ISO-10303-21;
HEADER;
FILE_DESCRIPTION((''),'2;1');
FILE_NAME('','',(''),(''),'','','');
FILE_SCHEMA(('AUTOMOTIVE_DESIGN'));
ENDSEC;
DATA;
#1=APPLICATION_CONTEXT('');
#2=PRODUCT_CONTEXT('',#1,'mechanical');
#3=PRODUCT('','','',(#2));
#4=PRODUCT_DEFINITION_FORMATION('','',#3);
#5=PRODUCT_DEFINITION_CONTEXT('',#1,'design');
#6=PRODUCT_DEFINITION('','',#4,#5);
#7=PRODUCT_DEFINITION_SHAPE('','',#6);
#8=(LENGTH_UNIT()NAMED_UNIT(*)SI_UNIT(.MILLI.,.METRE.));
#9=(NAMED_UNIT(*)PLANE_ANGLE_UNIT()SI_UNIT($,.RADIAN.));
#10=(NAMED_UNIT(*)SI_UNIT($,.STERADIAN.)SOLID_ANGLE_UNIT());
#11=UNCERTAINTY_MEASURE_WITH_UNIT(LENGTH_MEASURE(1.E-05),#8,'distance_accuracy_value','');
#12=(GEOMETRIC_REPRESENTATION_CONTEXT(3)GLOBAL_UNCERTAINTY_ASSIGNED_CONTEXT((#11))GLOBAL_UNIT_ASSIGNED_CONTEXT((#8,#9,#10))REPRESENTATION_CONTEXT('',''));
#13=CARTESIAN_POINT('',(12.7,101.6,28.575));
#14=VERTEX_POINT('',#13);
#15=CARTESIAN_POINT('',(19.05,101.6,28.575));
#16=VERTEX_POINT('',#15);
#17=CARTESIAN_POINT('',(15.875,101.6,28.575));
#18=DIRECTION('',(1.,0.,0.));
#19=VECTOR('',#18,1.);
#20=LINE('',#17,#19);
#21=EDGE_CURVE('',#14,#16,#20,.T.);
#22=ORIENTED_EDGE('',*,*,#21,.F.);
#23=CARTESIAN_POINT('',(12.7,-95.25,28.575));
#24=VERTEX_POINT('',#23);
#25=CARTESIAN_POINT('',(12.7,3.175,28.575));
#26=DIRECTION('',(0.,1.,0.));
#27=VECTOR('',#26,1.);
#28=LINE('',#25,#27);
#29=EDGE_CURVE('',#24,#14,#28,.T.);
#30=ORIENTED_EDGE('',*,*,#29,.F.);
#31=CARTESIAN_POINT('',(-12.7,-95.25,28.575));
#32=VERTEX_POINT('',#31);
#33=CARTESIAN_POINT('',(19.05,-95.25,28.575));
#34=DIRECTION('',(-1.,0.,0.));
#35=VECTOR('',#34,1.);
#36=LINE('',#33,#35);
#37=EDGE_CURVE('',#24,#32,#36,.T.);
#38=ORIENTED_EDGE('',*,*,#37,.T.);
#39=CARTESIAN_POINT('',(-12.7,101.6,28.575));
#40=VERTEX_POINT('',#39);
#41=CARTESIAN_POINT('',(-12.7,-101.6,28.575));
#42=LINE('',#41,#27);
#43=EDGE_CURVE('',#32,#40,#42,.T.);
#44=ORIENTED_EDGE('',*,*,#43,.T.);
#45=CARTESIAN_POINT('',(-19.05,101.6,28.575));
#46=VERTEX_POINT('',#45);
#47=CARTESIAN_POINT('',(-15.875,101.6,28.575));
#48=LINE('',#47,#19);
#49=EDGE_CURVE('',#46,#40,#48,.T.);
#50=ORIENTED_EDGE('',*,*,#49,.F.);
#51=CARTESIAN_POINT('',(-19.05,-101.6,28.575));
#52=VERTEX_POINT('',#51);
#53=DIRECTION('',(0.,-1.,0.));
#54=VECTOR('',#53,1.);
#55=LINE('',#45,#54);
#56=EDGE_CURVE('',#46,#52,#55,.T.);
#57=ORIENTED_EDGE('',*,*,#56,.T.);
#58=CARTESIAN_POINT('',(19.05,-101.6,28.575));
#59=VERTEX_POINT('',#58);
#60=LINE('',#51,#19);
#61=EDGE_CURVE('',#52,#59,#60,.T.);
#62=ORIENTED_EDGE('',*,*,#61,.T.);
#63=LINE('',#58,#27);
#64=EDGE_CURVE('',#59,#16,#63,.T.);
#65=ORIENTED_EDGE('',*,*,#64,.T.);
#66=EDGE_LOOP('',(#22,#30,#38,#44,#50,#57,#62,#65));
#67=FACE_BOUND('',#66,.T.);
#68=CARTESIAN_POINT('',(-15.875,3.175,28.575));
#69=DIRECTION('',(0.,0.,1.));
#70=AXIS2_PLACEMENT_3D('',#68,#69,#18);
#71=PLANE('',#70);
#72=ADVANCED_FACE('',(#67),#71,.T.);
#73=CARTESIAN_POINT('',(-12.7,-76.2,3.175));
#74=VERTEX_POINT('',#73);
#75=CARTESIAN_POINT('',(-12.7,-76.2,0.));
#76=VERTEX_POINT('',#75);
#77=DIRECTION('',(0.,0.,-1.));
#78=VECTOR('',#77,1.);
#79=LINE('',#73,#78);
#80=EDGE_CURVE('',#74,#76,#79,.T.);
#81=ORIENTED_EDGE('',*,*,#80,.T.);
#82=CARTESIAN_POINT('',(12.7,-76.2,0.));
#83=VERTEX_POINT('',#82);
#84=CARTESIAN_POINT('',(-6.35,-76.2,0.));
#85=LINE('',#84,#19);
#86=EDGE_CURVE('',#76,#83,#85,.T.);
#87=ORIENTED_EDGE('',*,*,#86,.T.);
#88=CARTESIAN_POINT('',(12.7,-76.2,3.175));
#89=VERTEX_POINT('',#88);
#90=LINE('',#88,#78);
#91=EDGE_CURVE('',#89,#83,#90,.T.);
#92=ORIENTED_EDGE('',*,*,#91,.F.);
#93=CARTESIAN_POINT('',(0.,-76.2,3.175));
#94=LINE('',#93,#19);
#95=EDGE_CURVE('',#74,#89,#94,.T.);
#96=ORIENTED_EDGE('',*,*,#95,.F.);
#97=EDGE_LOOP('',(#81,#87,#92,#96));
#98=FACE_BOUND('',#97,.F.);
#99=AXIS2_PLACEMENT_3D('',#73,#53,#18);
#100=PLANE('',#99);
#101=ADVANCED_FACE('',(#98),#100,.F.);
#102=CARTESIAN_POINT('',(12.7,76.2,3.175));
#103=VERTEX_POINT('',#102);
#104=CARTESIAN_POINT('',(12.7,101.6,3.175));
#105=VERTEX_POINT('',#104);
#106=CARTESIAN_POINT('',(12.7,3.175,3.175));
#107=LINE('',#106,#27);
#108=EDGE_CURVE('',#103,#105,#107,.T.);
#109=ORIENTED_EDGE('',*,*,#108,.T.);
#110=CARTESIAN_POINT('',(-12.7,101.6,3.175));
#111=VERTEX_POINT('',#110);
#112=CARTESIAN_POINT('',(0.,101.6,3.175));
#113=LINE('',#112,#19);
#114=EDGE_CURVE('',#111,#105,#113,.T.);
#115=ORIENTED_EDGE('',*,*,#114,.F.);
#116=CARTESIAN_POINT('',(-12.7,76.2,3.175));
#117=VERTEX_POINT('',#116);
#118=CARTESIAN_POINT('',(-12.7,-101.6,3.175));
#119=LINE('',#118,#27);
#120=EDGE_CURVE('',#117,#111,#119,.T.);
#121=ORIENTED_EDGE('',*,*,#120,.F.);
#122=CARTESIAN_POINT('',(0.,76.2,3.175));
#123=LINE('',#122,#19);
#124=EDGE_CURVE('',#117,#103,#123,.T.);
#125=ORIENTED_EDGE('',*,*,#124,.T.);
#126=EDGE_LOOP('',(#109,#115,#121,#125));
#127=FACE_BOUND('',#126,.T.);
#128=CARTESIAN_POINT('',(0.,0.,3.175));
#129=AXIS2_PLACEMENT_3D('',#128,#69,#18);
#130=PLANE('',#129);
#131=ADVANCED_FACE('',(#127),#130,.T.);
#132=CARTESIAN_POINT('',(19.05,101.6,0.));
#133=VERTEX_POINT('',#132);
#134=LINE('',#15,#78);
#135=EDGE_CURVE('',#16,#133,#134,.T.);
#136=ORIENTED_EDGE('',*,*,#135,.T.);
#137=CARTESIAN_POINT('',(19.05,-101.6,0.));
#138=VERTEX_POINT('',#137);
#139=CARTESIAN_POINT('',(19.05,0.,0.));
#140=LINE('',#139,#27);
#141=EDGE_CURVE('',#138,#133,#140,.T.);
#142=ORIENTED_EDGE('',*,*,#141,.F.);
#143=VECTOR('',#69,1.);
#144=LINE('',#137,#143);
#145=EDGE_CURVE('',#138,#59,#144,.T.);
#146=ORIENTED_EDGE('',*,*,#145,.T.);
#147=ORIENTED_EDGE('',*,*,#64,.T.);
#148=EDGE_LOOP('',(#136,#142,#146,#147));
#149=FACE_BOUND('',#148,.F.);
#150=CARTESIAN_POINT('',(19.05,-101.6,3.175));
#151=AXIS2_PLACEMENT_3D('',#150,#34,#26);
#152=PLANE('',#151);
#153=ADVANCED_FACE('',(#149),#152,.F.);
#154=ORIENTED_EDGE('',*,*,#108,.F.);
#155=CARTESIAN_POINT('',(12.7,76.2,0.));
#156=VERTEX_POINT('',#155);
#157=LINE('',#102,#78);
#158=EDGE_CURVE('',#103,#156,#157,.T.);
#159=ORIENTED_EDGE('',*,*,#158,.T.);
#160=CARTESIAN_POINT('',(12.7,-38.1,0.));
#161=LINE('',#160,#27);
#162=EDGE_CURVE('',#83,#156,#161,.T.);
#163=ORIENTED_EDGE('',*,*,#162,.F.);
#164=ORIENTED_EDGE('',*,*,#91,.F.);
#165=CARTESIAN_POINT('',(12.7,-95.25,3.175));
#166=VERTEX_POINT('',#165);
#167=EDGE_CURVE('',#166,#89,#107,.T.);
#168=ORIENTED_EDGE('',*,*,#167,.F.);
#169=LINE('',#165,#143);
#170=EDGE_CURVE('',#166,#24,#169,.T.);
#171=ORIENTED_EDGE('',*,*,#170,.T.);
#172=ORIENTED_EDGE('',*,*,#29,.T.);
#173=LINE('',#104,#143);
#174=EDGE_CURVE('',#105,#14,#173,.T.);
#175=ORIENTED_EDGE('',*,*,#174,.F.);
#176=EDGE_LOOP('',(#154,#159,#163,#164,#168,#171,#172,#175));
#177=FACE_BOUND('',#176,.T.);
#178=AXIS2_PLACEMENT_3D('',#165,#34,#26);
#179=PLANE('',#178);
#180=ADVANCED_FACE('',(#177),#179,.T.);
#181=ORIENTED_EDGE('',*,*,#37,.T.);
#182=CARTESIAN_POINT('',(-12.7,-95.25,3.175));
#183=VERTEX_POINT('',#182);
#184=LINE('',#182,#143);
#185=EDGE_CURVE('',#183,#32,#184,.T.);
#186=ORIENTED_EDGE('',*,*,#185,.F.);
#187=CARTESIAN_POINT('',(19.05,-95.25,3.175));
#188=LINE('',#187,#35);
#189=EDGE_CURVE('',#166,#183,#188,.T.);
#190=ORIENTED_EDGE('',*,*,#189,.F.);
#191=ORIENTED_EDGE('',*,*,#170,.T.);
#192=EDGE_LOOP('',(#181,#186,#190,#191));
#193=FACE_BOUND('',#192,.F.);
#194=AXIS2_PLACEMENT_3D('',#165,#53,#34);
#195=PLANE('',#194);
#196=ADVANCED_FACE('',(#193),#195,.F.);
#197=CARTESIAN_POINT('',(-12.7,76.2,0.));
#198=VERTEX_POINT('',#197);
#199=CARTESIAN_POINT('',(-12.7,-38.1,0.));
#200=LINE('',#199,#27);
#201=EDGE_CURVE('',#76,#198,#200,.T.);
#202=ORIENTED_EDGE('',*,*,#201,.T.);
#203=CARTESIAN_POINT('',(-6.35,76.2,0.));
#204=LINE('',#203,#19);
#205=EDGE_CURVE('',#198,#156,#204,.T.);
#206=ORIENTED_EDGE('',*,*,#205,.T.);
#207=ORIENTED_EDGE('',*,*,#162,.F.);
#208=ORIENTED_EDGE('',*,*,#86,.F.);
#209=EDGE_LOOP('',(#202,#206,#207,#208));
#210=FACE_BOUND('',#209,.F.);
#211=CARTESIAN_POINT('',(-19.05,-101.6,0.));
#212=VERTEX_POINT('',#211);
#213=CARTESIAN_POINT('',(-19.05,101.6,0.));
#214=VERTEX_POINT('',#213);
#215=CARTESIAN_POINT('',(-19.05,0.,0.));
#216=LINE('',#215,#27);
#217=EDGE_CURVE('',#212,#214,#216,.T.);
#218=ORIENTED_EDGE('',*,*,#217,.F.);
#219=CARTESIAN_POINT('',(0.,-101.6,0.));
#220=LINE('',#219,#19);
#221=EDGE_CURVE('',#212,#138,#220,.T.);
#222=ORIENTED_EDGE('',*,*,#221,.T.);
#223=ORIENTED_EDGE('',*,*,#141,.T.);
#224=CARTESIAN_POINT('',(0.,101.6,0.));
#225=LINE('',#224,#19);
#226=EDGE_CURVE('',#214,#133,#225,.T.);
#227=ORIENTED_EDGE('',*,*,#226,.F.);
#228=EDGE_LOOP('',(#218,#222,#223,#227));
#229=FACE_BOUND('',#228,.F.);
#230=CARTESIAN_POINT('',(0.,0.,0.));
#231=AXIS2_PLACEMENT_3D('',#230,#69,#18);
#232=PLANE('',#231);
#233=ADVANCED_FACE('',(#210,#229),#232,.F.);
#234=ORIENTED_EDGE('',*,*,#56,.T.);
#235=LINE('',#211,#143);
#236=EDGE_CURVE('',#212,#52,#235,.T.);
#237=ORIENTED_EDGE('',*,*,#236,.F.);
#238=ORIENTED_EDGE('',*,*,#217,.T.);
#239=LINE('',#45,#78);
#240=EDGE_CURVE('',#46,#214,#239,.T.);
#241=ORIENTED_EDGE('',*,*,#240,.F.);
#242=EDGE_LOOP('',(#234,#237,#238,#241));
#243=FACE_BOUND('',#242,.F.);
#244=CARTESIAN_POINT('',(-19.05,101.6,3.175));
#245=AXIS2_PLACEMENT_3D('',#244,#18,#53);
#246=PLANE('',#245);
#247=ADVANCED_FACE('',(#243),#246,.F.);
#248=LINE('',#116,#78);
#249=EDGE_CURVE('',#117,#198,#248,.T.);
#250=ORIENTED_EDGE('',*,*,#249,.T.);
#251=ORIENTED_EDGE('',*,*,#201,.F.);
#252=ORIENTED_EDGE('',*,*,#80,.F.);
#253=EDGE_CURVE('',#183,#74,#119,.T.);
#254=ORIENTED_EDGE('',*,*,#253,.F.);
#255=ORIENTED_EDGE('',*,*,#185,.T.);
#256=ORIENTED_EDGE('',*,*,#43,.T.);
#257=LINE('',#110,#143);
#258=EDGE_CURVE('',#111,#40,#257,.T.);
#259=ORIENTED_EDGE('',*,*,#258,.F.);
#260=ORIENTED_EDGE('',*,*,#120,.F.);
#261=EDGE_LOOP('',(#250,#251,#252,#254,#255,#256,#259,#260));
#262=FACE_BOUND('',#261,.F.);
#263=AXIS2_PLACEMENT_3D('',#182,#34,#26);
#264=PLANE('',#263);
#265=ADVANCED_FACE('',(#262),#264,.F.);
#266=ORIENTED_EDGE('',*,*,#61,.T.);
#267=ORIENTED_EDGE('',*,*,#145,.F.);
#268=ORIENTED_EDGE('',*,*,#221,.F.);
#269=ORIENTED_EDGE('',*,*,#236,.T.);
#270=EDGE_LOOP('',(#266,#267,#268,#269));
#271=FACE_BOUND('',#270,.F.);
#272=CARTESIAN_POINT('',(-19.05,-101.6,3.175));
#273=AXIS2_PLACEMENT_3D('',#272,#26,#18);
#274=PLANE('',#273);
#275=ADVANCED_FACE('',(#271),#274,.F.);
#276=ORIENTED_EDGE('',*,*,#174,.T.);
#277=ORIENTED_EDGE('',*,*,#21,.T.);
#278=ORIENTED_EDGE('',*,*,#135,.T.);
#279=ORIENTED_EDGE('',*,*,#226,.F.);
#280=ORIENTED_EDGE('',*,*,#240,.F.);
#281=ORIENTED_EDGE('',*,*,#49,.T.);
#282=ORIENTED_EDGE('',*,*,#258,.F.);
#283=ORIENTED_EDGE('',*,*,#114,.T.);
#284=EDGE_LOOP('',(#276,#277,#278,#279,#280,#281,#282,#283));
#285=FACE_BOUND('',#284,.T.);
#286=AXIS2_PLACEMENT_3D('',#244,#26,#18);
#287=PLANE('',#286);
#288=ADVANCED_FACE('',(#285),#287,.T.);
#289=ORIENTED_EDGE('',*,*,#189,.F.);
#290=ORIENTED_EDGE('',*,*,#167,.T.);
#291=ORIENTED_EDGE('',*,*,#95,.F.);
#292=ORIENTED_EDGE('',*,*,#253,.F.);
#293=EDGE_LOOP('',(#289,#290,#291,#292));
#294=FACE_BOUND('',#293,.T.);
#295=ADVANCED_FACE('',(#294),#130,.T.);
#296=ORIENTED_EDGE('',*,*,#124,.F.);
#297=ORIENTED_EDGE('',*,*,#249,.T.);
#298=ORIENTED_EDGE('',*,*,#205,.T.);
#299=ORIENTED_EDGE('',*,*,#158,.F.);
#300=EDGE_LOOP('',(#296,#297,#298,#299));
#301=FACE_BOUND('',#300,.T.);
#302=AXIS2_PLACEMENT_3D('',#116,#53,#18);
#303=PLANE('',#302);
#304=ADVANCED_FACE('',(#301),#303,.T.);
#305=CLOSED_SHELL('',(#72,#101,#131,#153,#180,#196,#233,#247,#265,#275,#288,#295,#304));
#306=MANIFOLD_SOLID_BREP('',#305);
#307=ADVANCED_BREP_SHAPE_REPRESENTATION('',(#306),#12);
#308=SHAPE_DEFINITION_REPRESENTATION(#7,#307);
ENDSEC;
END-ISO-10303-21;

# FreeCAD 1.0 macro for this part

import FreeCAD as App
import Part
import Sketcher
Q = App.Units.Quantity


def add_polygon(sketch, points):
    """Adds a closed chain of lines whose ends are joined by coincident constraints."""
    first, n = sketch.GeometryCount, len(points)
    for a, b in zip(points, points[1:] + points[:1]):
        sketch.addGeometry(Part.LineSegment(App.Vector(*a, 0), App.Vector(*b, 0)), False)
    for i in range(n):
        sketch.addConstraint(Sketcher.Constraint("Coincident", first + i, 2, first + (i + 1) % n, 1))

doc = App.newDocument("Part")
params = doc.addObject("Spreadsheet::Sheet", "Params")
for row, (alias, value) in enumerate([
    ("sketch1_height", "8 in"),
    ("sketch1_width", "1.5 in"),
    ("pad1_length", "0.125 in"),
    ("sketch2_width", "1 in"),
    ("sketch2_height", "8 in"),
    ("sketch2_width2", "1.5 in"),
    ("sketch2_height2", "7.75 in"),
    ("pad2_length", "1 in"),
    ("sketch3_width", "1 in"),
    ("sketch3_height", "6 in"),
], start=1):
    params.set(f"A{row}", alias)
    params.set(f"B{row}", "=" + value)
    params.setAlias(f"B{row}", alias)

body = doc.addObject("PartDesign::Body", "Body")

# Sketch on XY plane
sketch1 = doc.addObject("Sketcher::SketchObject", "Sketch")
body.addObject(sketch1)
sketch1.AttachmentSupport = (doc.XY_Plane, [""])
sketch1.MapMode = "FlatFace"
add_polygon(sketch1, [(-19.05, 101.6), (-19.05, -101.6), (19.05, -101.6), (19.05, 101.6)])  # lines 0-3
sketch1.addConstraint(Sketcher.Constraint("Vertical", 0))
sketch1.addConstraint(Sketcher.Constraint("Horizontal", 1))
sketch1.addConstraint(Sketcher.Constraint("Vertical", 2))
sketch1.addConstraint(Sketcher.Constraint("Horizontal", 3))
sketch1.addConstraint(Sketcher.Constraint("Symmetric", 0, 2, 2, 2, -1, 1))
sketch1.addConstraint(Sketcher.Constraint("DistanceY", 0, 2, 0, 1, Q("8 in")))
sketch1.addConstraint(Sketcher.Constraint("DistanceX", 1, 1, 1, 2, Q("1.5 in")))
sketch1.setExpression("Constraints[9]", "Params.sketch1_height")
sketch1.setExpression("Constraints[10]", "Params.sketch1_width")
pad1 = doc.addObject("PartDesign::Pad", "Pad")
body.addObject(pad1)
pad1.Profile = sketch1
pad1.setExpression("Length", "Params.pad1_length")

# Sketch on XY plane
sketch2 = doc.addObject("Sketcher::SketchObject", "Sketch001")
body.addObject(sketch2)
sketch2.AttachmentSupport = (doc.XY_Plane, [""])
sketch2.MapMode = "FlatFace"
sketch2.AttachmentOffset = App.Placement(App.Vector(0, 0, 0.125 * 25.4), App.Rotation())
add_polygon(sketch2, [(-19.05, 101.6), (-19.05, -101.6), (19.05, -101.6), (19.05, 101.6), (12.7, 101.6), (12.7, -95.25), (-12.7, -95.25), (-12.7, 101.6)])  # lines 0-7
sketch2.addConstraint(Sketcher.Constraint("Vertical", 0))
sketch2.addConstraint(Sketcher.Constraint("Horizontal", 1))
sketch2.addConstraint(Sketcher.Constraint("Vertical", 2))
sketch2.addConstraint(Sketcher.Constraint("Horizontal", 3))
sketch2.addConstraint(Sketcher.Constraint("Vertical", 4))
sketch2.addConstraint(Sketcher.Constraint("Horizontal", 5))
sketch2.addConstraint(Sketcher.Constraint("Vertical", 6))
sketch2.addConstraint(Sketcher.Constraint("Horizontal", 7))
sketch2.addConstraint(Sketcher.Constraint("Symmetric", 0, 2, 2, 2, -1, 1))
sketch2.addConstraint(Sketcher.Constraint("Symmetric", 3, 2, 6, 2, -2))
sketch2.addConstraint(Sketcher.Constraint("DistanceX", 5, 2, 5, 1, Q("1 in")))
sketch2.addConstraint(Sketcher.Constraint("DistanceY", 0, 2, 0, 1, Q("8 in")))
sketch2.addConstraint(Sketcher.Constraint("DistanceX", 1, 1, 1, 2, Q("1.5 in")))
sketch2.addConstraint(Sketcher.Constraint("DistanceY", 4, 2, 4, 1, Q("7.75 in")))
sketch2.setExpression("Constraints[18]", "Params.sketch2_width")
sketch2.setExpression("Constraints[19]", "Params.sketch2_height")
sketch2.setExpression("Constraints[20]", "Params.sketch2_width2")
sketch2.setExpression("Constraints[21]", "Params.sketch2_height2")
pad2 = doc.addObject("PartDesign::Pad", "Pad001")
body.addObject(pad2)
pad2.Profile = sketch2
pad2.setExpression("Length", "Params.pad2_length")

# Sketch on XY plane
sketch3 = doc.addObject("Sketcher::SketchObject", "Sketch002")
body.addObject(sketch3)
sketch3.AttachmentSupport = (doc.XY_Plane, [""])
sketch3.MapMode = "FlatFace"
sketch3.AttachmentOffset = App.Placement(App.Vector(0, 0, 0.125 * 25.4), App.Rotation())
add_polygon(sketch3, [(-12.7, 76.2), (-12.7, -76.2), (12.7, -76.2), (12.7, 76.2)])  # lines 0-3
sketch3.addConstraint(Sketcher.Constraint("Vertical", 0))
sketch3.addConstraint(Sketcher.Constraint("Horizontal", 1))
sketch3.addConstraint(Sketcher.Constraint("Vertical", 2))
sketch3.addConstraint(Sketcher.Constraint("Horizontal", 3))
sketch3.addConstraint(Sketcher.Constraint("Symmetric", 0, 2, 2, 2, -1, 1))
sketch3.addConstraint(Sketcher.Constraint("DistanceX", 1, 1, 1, 2, Q("1 in")))
sketch3.addConstraint(Sketcher.Constraint("DistanceY", 0, 2, 0, 1, Q("6 in")))
sketch3.setExpression("Constraints[9]", "Params.sketch3_width")
sketch3.setExpression("Constraints[10]", "Params.sketch3_height")
pocket1 = doc.addObject("PartDesign::Pocket", "Pocket")
body.addObject(pocket1)
pocket1.Profile = sketch3
pocket1.Type = "ThroughAll"

doc.recompute()
